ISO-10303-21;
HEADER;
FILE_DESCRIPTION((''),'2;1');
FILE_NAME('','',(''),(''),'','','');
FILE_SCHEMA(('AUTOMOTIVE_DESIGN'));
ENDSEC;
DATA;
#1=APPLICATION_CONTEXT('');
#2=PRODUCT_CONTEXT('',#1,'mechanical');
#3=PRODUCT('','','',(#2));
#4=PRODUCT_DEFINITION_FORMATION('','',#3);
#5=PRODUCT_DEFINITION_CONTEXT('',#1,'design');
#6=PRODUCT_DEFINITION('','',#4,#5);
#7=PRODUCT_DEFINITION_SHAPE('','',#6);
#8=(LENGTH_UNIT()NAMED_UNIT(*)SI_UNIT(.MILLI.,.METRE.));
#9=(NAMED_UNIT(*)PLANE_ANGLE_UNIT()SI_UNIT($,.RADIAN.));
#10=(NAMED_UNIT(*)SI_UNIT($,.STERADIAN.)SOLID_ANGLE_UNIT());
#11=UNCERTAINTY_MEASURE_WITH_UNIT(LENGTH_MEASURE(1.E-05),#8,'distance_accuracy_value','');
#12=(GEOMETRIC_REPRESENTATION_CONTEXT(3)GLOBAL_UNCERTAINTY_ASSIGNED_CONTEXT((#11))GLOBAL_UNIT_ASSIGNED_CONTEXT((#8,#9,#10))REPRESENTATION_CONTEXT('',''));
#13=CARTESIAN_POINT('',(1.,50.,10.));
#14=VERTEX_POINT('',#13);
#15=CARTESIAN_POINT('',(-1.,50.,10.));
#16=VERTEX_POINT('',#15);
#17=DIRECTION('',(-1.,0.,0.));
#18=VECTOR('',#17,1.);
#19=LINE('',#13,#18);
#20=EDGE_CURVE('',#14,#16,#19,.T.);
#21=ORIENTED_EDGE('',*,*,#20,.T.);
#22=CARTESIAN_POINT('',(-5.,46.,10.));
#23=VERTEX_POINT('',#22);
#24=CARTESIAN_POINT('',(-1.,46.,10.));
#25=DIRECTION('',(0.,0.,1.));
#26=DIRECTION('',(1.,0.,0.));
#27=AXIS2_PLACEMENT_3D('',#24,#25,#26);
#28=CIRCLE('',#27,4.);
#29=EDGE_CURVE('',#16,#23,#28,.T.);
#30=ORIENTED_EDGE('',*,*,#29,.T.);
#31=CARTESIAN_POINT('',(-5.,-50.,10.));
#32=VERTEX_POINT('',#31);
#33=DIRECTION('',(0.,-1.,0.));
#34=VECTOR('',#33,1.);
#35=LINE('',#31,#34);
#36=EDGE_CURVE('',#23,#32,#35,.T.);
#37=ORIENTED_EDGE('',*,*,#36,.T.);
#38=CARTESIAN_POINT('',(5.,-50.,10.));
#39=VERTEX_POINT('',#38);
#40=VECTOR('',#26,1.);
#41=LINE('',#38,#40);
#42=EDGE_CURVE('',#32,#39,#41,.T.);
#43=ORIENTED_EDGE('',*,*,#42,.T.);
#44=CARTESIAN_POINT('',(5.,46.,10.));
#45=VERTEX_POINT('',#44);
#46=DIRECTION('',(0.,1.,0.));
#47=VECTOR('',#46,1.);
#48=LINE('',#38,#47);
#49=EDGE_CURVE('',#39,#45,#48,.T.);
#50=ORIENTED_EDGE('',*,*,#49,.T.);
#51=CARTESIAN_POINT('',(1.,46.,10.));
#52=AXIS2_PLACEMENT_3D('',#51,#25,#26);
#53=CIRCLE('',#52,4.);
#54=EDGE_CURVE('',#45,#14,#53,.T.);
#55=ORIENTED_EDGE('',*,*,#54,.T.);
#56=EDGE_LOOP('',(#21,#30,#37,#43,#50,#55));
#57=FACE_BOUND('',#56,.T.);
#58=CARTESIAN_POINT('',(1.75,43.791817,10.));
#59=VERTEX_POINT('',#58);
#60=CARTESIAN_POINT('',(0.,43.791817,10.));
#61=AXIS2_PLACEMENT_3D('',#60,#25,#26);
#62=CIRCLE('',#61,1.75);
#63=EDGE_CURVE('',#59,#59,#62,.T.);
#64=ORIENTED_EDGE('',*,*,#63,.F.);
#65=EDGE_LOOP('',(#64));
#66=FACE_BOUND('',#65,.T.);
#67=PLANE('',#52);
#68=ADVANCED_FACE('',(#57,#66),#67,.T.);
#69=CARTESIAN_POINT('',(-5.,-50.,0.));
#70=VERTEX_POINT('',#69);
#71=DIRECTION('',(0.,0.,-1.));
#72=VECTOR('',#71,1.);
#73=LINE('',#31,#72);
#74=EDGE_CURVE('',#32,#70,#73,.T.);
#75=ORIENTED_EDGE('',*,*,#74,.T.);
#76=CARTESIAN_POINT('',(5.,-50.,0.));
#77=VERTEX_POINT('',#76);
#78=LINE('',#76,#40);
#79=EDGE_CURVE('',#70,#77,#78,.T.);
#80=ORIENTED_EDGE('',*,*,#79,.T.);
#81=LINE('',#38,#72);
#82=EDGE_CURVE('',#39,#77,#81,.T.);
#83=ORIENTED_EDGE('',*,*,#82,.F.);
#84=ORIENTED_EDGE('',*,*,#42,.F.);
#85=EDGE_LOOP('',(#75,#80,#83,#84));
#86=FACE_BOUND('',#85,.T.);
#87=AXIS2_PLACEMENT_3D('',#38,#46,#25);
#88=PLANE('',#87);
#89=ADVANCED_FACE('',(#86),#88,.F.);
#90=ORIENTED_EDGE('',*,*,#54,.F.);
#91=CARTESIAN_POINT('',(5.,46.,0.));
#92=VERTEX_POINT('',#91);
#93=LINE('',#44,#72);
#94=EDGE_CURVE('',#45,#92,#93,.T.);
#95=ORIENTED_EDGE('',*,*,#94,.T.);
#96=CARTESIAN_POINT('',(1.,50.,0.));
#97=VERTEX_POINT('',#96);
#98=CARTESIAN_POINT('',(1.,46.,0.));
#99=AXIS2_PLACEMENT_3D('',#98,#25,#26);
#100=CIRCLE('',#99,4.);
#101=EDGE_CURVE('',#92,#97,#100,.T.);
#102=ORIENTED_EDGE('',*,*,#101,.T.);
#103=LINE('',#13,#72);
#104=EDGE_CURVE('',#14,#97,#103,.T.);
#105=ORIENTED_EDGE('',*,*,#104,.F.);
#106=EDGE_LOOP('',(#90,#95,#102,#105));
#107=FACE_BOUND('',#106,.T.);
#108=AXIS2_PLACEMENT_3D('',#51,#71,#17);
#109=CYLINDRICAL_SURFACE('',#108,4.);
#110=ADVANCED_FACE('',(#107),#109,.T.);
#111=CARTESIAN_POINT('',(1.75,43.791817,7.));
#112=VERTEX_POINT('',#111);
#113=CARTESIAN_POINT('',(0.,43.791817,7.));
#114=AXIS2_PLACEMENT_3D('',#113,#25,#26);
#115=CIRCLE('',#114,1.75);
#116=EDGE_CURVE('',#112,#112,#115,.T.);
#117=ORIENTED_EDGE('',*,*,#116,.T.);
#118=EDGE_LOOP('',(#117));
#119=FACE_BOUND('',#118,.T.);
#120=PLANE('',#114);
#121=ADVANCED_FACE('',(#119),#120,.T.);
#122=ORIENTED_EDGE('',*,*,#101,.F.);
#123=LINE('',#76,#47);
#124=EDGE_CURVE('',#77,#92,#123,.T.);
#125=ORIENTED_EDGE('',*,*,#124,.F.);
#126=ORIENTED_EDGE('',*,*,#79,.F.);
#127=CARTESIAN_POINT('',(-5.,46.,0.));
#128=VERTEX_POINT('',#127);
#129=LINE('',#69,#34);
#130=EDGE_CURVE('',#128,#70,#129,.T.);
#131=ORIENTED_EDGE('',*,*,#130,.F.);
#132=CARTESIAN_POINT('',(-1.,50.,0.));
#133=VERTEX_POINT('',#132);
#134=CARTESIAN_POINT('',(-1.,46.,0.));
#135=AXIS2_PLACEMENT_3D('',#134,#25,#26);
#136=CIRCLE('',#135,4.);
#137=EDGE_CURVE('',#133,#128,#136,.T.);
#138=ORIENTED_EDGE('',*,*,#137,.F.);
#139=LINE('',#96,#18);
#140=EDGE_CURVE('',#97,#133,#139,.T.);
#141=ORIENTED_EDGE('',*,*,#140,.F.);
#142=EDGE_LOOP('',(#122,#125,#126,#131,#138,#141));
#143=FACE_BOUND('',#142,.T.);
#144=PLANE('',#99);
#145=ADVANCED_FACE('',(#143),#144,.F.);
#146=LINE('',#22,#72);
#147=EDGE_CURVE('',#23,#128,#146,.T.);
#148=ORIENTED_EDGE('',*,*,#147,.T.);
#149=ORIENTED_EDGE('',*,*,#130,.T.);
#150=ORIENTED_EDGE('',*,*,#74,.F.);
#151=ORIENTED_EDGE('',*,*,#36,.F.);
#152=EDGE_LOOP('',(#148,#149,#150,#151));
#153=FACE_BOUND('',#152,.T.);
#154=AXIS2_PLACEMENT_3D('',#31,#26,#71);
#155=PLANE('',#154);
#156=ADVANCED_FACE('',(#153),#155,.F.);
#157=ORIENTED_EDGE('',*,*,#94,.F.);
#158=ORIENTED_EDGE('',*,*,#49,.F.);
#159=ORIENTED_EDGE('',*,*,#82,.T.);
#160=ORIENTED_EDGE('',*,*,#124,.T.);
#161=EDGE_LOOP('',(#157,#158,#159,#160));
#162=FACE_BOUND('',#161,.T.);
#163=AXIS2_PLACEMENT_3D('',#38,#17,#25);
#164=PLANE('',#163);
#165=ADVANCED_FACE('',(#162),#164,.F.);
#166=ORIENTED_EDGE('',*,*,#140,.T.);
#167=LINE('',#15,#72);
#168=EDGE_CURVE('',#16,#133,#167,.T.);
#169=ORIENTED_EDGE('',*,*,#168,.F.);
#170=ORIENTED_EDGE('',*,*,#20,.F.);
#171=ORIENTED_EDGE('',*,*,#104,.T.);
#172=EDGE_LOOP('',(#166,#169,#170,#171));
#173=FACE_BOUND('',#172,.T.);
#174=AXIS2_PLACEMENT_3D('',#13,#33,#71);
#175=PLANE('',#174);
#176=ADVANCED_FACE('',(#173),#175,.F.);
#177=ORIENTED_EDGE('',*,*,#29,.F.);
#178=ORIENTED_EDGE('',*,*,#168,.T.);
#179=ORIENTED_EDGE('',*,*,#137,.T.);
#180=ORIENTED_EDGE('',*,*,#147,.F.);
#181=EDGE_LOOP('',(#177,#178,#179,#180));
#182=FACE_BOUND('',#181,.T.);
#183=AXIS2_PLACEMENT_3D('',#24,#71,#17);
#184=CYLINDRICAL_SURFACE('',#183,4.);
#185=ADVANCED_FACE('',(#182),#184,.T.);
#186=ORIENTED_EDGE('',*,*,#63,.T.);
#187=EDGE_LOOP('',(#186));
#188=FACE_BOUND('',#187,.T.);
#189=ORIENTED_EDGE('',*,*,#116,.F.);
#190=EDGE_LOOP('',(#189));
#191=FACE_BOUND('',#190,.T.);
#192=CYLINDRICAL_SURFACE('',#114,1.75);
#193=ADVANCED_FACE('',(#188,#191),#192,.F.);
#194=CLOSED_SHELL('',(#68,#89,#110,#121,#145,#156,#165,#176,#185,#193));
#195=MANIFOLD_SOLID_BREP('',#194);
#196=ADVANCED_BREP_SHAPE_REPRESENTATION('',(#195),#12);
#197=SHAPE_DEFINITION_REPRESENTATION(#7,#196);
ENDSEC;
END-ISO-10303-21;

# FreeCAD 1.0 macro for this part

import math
import FreeCAD as App
import Part
import Sketcher
from FreeCAD import Vector
Q = App.Units.Quantity

doc = App.newDocument("Part")
body = doc.addObject("PartDesign::Body", "Body")

sketch1 = doc.addObject("Sketcher::SketchObject", "Sketch")
body.addObject(sketch1)
sketch1.AttachmentSupport = (doc.XY_Plane, [""])
sketch1.MapMode = "FlatFace"
sketch1.addGeometry([
    Part.LineSegment(Vector(-5, -50, 0), Vector(5, -50, 0)),
    Part.LineSegment(Vector(5, -50, 0), Vector(5, 46, 0)),
    Part.ArcOfCircle(Part.Circle(Vector(1, 46, 0), Vector(0, 0, 1), 4), math.radians(0), math.radians(90)),
    Part.LineSegment(Vector(1, 50, 0), Vector(-1, 50, 0)),
    Part.ArcOfCircle(Part.Circle(Vector(-1, 46, 0), Vector(0, 0, 1), 4), math.radians(90), math.radians(180)),
    Part.LineSegment(Vector(-5, 46, 0), Vector(-5, -50, 0)),
], False)
sketch1.addConstraint([
    Sketcher.Constraint("Coincident", 0, 2, 1, 1),
    Sketcher.Constraint("Tangent", 1, 2, 2, 1),
    Sketcher.Constraint("Tangent", 2, 2, 3, 1),
    Sketcher.Constraint("Tangent", 3, 2, 4, 1),
    Sketcher.Constraint("Tangent", 4, 2, 5, 1),
    Sketcher.Constraint("Coincident", 5, 2, 0, 1),
    Sketcher.Constraint("Horizontal", 0),
    Sketcher.Constraint("Vertical", 1),
    Sketcher.Constraint("Horizontal", 3),
    Sketcher.Constraint("Vertical", 5),
    Sketcher.Constraint("Equal", 2, 4),
    Sketcher.Constraint("Radius", 2, Q("4 mm")),
    Sketcher.Constraint("DistanceX", 0, 1, 0, 2, Q("10 mm")),
    Sketcher.Constraint("DistanceY", 1, 1, 1, 2, Q("96 mm")),
    Sketcher.Constraint("DistanceX", -1, 1, 2, 3, Q("1 mm")),
    Sketcher.Constraint("DistanceY", -1, 1, 2, 3, Q("46 mm")),
])
pad1 = doc.addObject("PartDesign::Pad", "Pad")
body.addObject(pad1)
pad1.Profile = sketch1
pad1.Length = 10

sketch2 = doc.addObject("Sketcher::SketchObject", "Sketch001")
body.addObject(sketch2)
sketch2.AttachmentSupport = (doc.XY_Plane, [""])
sketch2.MapMode = "FlatFace"
sketch2.AttachmentOffset = App.Placement(Vector(0, 0, 10), App.Rotation())
sketch2.addGeometry(Part.Circle(Vector(0, 43.8, 0), Vector(0, 0, 1), 1.8), False)
sketch2.addConstraint([
    Sketcher.Constraint("PointOnObject", 0, 3, -2),
    Sketcher.Constraint("Diameter", 0, Q("3.5 mm")),
    Sketcher.Constraint("DistanceY", -1, 1, 0, 3, Q("43.791817 mm")),
])
pocket1 = doc.addObject("PartDesign::Pocket", "Pocket")
body.addObject(pocket1)
pocket1.Profile = sketch2
pocket1.Length = 3

doc.recompute()
